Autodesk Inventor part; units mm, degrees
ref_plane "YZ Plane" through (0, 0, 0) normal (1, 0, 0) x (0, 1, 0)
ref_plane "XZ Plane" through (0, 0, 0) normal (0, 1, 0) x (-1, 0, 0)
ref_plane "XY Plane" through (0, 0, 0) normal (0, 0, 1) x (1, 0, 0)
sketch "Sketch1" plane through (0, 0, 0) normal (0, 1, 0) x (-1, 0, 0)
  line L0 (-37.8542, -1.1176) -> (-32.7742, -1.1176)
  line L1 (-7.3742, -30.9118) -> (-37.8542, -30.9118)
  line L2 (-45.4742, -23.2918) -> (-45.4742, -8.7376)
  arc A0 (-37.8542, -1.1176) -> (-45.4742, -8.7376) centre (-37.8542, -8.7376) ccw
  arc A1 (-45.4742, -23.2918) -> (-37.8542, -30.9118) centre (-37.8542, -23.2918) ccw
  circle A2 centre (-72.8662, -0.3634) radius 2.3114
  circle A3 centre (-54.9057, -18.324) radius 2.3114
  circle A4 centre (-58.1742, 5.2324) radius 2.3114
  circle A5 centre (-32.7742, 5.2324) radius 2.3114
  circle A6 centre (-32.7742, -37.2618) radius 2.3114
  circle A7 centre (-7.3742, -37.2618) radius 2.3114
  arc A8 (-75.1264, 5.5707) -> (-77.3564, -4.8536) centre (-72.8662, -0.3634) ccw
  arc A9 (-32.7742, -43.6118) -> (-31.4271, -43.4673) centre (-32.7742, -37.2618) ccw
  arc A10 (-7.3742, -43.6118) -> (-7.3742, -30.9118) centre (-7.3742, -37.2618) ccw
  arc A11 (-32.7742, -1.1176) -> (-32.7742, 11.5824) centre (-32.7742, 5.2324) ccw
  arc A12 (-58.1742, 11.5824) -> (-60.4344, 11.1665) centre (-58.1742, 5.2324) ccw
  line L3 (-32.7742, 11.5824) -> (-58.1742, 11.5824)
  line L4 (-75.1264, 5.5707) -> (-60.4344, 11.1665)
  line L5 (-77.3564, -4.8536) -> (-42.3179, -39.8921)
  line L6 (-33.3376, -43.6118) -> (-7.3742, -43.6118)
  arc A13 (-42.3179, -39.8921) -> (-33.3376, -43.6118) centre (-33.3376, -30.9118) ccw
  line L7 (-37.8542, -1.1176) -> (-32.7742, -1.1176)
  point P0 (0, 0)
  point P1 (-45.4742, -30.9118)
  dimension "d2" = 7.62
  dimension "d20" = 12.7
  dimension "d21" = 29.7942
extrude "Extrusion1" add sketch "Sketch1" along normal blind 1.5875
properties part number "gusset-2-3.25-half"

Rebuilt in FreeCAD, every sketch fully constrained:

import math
import FreeCAD as App
import Part
import Sketcher
Q = App.Units.Quantity

doc = App.newDocument("Part")
params = doc.addObject("Spreadsheet::Sheet", "Params")
for row, (alias, value) in enumerate([
    ("sketch1_radius", "0.3 in"),
    ("sketch1_radius2", "0.5 in"),
    ("sketch1_width", "1 in"),
    ("sketch1_diameter", "0.182 in"),
    ("sketch1_width2", "1.2 in"),
    ("pad1_length", "0.0625 in"),
], start=1):
    params.set(f"A{row}", alias)
    params.set(f"B{row}", "=" + value)
    params.setAlias(f"B{row}", alias)

body = doc.addObject("PartDesign::Body", "Body")

# Sketch on XZ plane
sketch1 = body.newObject("Sketcher::SketchObject", "Sketch")
sketch1.AttachmentSupport = (doc.getObject("XZ_Plane"), [""])
sketch1.MapMode = "FlatFace"
sketch1.addGeometry([
    Part.ArcOfCircle(Part.Circle(App.Vector(37.9, -8.7, 0), App.Vector(0, 0, 1), 7.6), math.radians(0), math.radians(90)),  # 0
    Part.LineSegment(App.Vector(37.9, -1.1, 0), App.Vector(32.8, -1.1, 0)),  # 1
    Part.ArcOfCircle(Part.Circle(App.Vector(32.8, 5.2, 0), App.Vector(0, 0, 1), 6.3), math.radians(90), math.radians(270)),  # 2
    Part.LineSegment(App.Vector(32.8, 11.6, 0), App.Vector(58.2, 11.6, 0)),  # 3
    Part.ArcOfCircle(Part.Circle(App.Vector(58.2, 5.2, 0), App.Vector(0, 0, 1), 6.3), math.radians(69), math.radians(90)),  # 4
    Part.LineSegment(App.Vector(60.4, 11.2, 0), App.Vector(75.1, 5.6, 0)),  # 5
    Part.ArcOfCircle(Part.Circle(App.Vector(72.9, -0.4, 0), App.Vector(0, 0, 1), 6.3), math.radians(-45), math.radians(69)),  # 6
    Part.LineSegment(App.Vector(77.4, -4.9, 0), App.Vector(42.3, -39.9, 0)),  # 7
    Part.ArcOfCircle(Part.Circle(App.Vector(33.3, -30.9, 0), App.Vector(0, 0, 1), 12.7), math.radians(-90), math.radians(-45)),  # 8
    Part.LineSegment(App.Vector(33.3, -43.6, 0), App.Vector(7.4, -43.6, 0)),  # 9
    Part.ArcOfCircle(Part.Circle(App.Vector(7.4, -37.3, 0), App.Vector(0, 0, 1), 6.4), math.radians(90), math.radians(270)),  # 10
    Part.LineSegment(App.Vector(7.4, -30.9, 0), App.Vector(37.9, -30.9, 0)),  # 11
    Part.ArcOfCircle(Part.Circle(App.Vector(37.9, -23.3, 0), App.Vector(0, 0, 1), 7.6), math.radians(-90), math.radians(0)),  # 12
    Part.LineSegment(App.Vector(45.5, -23.3, 0), App.Vector(45.5, -8.7, 0)),  # 13
    Part.Circle(App.Vector(54.9, -18.3, 0), App.Vector(0, 0, 1), 2.3),  # 14
    Part.Circle(App.Vector(32.8, -37.3, 0), App.Vector(0, 0, 1), 2.3),  # 15
    Part.Circle(App.Vector(7.4, -37.3, 0), App.Vector(0, 0, 1), 2.3),  # 16
    Part.Circle(App.Vector(72.9, -0.4, 0), App.Vector(0, 0, 1), 2.3),  # 17
    Part.Circle(App.Vector(58.2, 5.2, 0), App.Vector(0, 0, 1), 2.3),  # 18
    Part.Circle(App.Vector(32.8, 5.2, 0), App.Vector(0, 0, 1), 2.3),  # 19
], False)
sketch1.addConstraint([
    Sketcher.Constraint("Tangent", 0, 2, 1, 1),
    Sketcher.Constraint("Tangent", 1, 2, 2, 2),
    Sketcher.Constraint("Tangent", 2, 1, 3, 1),
    Sketcher.Constraint("Tangent", 3, 2, 4, 2),
    Sketcher.Constraint("Tangent", 4, 1, 5, 1),
    Sketcher.Constraint("Tangent", 5, 2, 6, 2),
    Sketcher.Constraint("Tangent", 6, 1, 7, 1),
    Sketcher.Constraint("Tangent", 7, 2, 8, 2),
    Sketcher.Constraint("Tangent", 8, 1, 9, 1),
    Sketcher.Constraint("Tangent", 9, 2, 10, 2),
    Sketcher.Constraint("Tangent", 10, 1, 11, 1),
    Sketcher.Constraint("Tangent", 11, 2, 12, 1),
    Sketcher.Constraint("Tangent", 12, 2, 13, 1),
    Sketcher.Constraint("Tangent", 13, 2, 0, 1),
    Sketcher.Constraint("Horizontal", 1),
    Sketcher.Constraint("Horizontal", 3),
    Sketcher.Constraint("Horizontal", 9),
    Sketcher.Constraint("Horizontal", 11),
    Sketcher.Constraint("Vertical", 13),
    Sketcher.Constraint("Coincident", 16, 3, 10, 3),
    Sketcher.Constraint("Coincident", 17, 3, 6, 3),
    Sketcher.Constraint("Coincident", 19, 3, 2, 3),
    Sketcher.Constraint("Equal", 2, 6),
    Sketcher.Constraint("Equal", 6, 10),
    Sketcher.Constraint("Equal", 0, 12),
    Sketcher.Constraint("Equal", 14, 15),
    Sketcher.Constraint("Equal", 15, 16),
    Sketcher.Constraint("Equal", 16, 17),
    Sketcher.Constraint("Equal", 17, 18),
    Sketcher.Constraint("Equal", 18, 19),
    Sketcher.Constraint("Horizontal", 10, 3, 15, 3),
    Sketcher.Constraint("Horizontal", 2, 3, 18, 3),
    Sketcher.Constraint("Horizontal", 8, 3, 10, 1),
    Sketcher.Constraint("Vertical", 2, 3, 15, 3),
    Sketcher.Constraint("Vertical", 4, 3, 18, 3),
    Sketcher.Constraint("Radius", 0, Q("0.3 in")),
    Sketcher.Constraint("Radius", 8, Q("0.5 in")),
    Sketcher.Constraint("DistanceX", 1, 2, 13, 2, Q("0.5 in")),
    Sketcher.Constraint("DistanceX", 3, 1, 3, 2, Q("1 in")),
    Sketcher.Constraint("Diameter", 14, Q("0.182 in")),
    Sketcher.Constraint("DistanceX", 11, 1, 11, 2, Q("1.2 in")),
    Sketcher.Constraint("Angle", 7, Q("-135 deg")),
    Sketcher.Constraint("DistanceY", 13, 1, 13, 2, Q("0.573 in")),
    Sketcher.Constraint("Angle", 5, Q("-20.8505 deg")),
    Sketcher.Constraint("Radius", 4, 6.349),
    Sketcher.Constraint("DistanceY", 0, 3, -1, 1, Q("0.344 in")),
    Sketcher.Constraint("DistanceX", -1, 1, 8, 3, Q("1.3125 in")),
    Sketcher.Constraint("DistanceX", 9, 2, 9, 1, 25.9634),
    Sketcher.Constraint("DistanceX", 14, 3, 6, 3, Q("0.7071 in")),
    Sketcher.Constraint("DistanceY", 14, 3, 6, 3, Q("0.7071 in")),
])
sketch1.setExpression("Constraints[35]", "Params.sketch1_radius")
sketch1.setExpression("Constraints[36]", "Params.sketch1_radius2")
sketch1.setExpression("Constraints[38]", "Params.sketch1_width")
sketch1.setExpression("Constraints[39]", "Params.sketch1_diameter")
sketch1.setExpression("Constraints[40]", "Params.sketch1_width2")
pad1 = body.newObject("PartDesign::Pad", "Pad")
pad1.Profile = sketch1
pad1.setExpression("Length", "Params.pad1_length")
pad1.Reversed = True

doc.recompute()
